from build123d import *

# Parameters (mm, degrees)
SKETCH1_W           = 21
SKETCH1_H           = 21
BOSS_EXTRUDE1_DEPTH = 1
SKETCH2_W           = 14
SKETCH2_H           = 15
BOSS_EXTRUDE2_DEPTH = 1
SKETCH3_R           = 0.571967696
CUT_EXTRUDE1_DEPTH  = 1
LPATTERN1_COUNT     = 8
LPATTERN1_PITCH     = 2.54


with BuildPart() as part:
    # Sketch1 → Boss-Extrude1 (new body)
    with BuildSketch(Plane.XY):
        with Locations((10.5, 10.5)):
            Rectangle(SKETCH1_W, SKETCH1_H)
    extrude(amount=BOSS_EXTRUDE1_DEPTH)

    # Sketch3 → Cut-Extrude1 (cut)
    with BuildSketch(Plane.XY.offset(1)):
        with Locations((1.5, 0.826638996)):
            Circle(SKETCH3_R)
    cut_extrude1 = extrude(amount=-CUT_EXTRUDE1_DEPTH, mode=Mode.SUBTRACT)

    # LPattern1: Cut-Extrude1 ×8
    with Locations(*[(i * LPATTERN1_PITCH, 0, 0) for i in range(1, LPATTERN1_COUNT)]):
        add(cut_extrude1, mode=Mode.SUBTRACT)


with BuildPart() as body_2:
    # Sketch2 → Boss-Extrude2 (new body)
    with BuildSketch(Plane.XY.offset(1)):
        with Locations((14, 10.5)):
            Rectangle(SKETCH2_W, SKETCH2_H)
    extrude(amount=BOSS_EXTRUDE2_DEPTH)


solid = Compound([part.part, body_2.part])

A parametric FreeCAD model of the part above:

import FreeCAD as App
import Part
import Sketcher

V = App.Vector
Q = App.Units.Quantity

doc = App.newDocument("Part")
body = doc.addObject("PartDesign::Body", "Body")

sketch1 = body.newObject("Sketcher::SketchObject", "Sketch")
sketch1.AttachmentSupport = (doc.getObject("XY_Plane"), [""])
sketch1.MapMode = "FlatFace"
sketch1.addGeometry([
    Part.LineSegment(V(0, 21, 0), V(0, 0, 0)),
    Part.LineSegment(V(0, 0, 0), V(21, 0, 0)),
    Part.LineSegment(V(21, 0, 0), V(21, 21, 0)),
    Part.LineSegment(V(21, 21, 0), V(0, 21, 0)),
], False)
sketch1.addConstraint([
    Sketcher.Constraint("Coincident", 0, 2, 1, 1),
    Sketcher.Constraint("Coincident", 1, 2, 2, 1),
    Sketcher.Constraint("Coincident", 2, 2, 3, 1),
    Sketcher.Constraint("Coincident", 3, 2, 0, 1),
    Sketcher.Constraint("Vertical", 0),
    Sketcher.Constraint("Horizontal", 1),
    Sketcher.Constraint("Vertical", 2),
    Sketcher.Constraint("Horizontal", 3),
    Sketcher.Constraint("Coincident", 0, 2, -1, 1),
    Sketcher.Constraint("Equal", 3, 0),
    Sketcher.Constraint("DistanceX", 1, 1, 1, 2, Q("21 mm")),
])
pad1 = body.newObject("PartDesign::Pad", "Pad")
pad1.Profile = sketch1
pad1.Length = 1

sketch2 = body.newObject("Sketcher::SketchObject", "Sketch001")
sketch2.AttachmentSupport = (doc.getObject("XY_Plane"), [""])
sketch2.MapMode = "FlatFace"
sketch2.AttachmentOffset = App.Placement(V(0, 0, 1), App.Rotation())
sketch2.addGeometry(Part.Circle(V(1.5, 0.8, 0), V(0, 0, 1), 0.6), False)
sketch2.addConstraint([
    Sketcher.Constraint("DistanceX", -1, 1, 0, 3, Q("1.5 mm")),
    Sketcher.Constraint("Diameter", 0, Q("1.143935 mm")),
    Sketcher.Constraint("DistanceY", -1, 1, 0, 3, Q("0.826639 mm")),
])
pocket1 = body.newObject("PartDesign::Pocket", "Pocket")
pocket1.Profile = sketch2
pocket1.Length = 1
doc.recompute()

linearpattern = body.newObject("PartDesign::LinearPattern", "LinearPattern")
linearpattern.Originals = [pocket1]
linearpattern.Direction = (doc.getObject("X_Axis"), [""])
linearpattern.Mode = "offset"
linearpattern.Offset = 2.54
linearpattern.Occurrences = 8
body.Tip = linearpattern
body2 = doc.addObject("PartDesign::Body", "Body001")

sketch3 = body2.newObject("Sketcher::SketchObject", "Sketch002")
sketch3.AttachmentSupport = (doc.getObject("XY_Plane001"), [""])
sketch3.MapMode = "FlatFace"
sketch3.AttachmentOffset = App.Placement(V(0, 0, 1), App.Rotation())
sketch3.addGeometry([
    Part.LineSegment(V(7, 18, 0), V(7, 3, 0)),
    Part.LineSegment(V(7, 3, 0), V(21, 3, 0)),
    Part.LineSegment(V(21, 3, 0), V(21, 18, 0)),
    Part.LineSegment(V(21, 18, 0), V(7, 18, 0)),
], False)
sketch3.addConstraint([
    Sketcher.Constraint("Coincident", 0, 2, 1, 1),
    Sketcher.Constraint("Coincident", 1, 2, 2, 1),
    Sketcher.Constraint("Coincident", 2, 2, 3, 1),
    Sketcher.Constraint("Coincident", 3, 2, 0, 1),
    Sketcher.Constraint("Vertical", 0),
    Sketcher.Constraint("Horizontal", 1),
    Sketcher.Constraint("Vertical", 2),
    Sketcher.Constraint("Horizontal", 3),
    Sketcher.Constraint("DistanceX", 1, 1, 1, 2, Q("14 mm")),
    Sketcher.Constraint("DistanceY", 0, 2, 0, 1, Q("15 mm")),
    Sketcher.Constraint("DistanceX", -1, 1, 0, 2, Q("7 mm")),
    Sketcher.Constraint("DistanceY", -1, 1, 0, 2, Q("3 mm")),
])
pad2 = body2.newObject("PartDesign::Pad", "Pad001")
pad2.Profile = sketch3
pad2.Length = 1

doc.recompute()
